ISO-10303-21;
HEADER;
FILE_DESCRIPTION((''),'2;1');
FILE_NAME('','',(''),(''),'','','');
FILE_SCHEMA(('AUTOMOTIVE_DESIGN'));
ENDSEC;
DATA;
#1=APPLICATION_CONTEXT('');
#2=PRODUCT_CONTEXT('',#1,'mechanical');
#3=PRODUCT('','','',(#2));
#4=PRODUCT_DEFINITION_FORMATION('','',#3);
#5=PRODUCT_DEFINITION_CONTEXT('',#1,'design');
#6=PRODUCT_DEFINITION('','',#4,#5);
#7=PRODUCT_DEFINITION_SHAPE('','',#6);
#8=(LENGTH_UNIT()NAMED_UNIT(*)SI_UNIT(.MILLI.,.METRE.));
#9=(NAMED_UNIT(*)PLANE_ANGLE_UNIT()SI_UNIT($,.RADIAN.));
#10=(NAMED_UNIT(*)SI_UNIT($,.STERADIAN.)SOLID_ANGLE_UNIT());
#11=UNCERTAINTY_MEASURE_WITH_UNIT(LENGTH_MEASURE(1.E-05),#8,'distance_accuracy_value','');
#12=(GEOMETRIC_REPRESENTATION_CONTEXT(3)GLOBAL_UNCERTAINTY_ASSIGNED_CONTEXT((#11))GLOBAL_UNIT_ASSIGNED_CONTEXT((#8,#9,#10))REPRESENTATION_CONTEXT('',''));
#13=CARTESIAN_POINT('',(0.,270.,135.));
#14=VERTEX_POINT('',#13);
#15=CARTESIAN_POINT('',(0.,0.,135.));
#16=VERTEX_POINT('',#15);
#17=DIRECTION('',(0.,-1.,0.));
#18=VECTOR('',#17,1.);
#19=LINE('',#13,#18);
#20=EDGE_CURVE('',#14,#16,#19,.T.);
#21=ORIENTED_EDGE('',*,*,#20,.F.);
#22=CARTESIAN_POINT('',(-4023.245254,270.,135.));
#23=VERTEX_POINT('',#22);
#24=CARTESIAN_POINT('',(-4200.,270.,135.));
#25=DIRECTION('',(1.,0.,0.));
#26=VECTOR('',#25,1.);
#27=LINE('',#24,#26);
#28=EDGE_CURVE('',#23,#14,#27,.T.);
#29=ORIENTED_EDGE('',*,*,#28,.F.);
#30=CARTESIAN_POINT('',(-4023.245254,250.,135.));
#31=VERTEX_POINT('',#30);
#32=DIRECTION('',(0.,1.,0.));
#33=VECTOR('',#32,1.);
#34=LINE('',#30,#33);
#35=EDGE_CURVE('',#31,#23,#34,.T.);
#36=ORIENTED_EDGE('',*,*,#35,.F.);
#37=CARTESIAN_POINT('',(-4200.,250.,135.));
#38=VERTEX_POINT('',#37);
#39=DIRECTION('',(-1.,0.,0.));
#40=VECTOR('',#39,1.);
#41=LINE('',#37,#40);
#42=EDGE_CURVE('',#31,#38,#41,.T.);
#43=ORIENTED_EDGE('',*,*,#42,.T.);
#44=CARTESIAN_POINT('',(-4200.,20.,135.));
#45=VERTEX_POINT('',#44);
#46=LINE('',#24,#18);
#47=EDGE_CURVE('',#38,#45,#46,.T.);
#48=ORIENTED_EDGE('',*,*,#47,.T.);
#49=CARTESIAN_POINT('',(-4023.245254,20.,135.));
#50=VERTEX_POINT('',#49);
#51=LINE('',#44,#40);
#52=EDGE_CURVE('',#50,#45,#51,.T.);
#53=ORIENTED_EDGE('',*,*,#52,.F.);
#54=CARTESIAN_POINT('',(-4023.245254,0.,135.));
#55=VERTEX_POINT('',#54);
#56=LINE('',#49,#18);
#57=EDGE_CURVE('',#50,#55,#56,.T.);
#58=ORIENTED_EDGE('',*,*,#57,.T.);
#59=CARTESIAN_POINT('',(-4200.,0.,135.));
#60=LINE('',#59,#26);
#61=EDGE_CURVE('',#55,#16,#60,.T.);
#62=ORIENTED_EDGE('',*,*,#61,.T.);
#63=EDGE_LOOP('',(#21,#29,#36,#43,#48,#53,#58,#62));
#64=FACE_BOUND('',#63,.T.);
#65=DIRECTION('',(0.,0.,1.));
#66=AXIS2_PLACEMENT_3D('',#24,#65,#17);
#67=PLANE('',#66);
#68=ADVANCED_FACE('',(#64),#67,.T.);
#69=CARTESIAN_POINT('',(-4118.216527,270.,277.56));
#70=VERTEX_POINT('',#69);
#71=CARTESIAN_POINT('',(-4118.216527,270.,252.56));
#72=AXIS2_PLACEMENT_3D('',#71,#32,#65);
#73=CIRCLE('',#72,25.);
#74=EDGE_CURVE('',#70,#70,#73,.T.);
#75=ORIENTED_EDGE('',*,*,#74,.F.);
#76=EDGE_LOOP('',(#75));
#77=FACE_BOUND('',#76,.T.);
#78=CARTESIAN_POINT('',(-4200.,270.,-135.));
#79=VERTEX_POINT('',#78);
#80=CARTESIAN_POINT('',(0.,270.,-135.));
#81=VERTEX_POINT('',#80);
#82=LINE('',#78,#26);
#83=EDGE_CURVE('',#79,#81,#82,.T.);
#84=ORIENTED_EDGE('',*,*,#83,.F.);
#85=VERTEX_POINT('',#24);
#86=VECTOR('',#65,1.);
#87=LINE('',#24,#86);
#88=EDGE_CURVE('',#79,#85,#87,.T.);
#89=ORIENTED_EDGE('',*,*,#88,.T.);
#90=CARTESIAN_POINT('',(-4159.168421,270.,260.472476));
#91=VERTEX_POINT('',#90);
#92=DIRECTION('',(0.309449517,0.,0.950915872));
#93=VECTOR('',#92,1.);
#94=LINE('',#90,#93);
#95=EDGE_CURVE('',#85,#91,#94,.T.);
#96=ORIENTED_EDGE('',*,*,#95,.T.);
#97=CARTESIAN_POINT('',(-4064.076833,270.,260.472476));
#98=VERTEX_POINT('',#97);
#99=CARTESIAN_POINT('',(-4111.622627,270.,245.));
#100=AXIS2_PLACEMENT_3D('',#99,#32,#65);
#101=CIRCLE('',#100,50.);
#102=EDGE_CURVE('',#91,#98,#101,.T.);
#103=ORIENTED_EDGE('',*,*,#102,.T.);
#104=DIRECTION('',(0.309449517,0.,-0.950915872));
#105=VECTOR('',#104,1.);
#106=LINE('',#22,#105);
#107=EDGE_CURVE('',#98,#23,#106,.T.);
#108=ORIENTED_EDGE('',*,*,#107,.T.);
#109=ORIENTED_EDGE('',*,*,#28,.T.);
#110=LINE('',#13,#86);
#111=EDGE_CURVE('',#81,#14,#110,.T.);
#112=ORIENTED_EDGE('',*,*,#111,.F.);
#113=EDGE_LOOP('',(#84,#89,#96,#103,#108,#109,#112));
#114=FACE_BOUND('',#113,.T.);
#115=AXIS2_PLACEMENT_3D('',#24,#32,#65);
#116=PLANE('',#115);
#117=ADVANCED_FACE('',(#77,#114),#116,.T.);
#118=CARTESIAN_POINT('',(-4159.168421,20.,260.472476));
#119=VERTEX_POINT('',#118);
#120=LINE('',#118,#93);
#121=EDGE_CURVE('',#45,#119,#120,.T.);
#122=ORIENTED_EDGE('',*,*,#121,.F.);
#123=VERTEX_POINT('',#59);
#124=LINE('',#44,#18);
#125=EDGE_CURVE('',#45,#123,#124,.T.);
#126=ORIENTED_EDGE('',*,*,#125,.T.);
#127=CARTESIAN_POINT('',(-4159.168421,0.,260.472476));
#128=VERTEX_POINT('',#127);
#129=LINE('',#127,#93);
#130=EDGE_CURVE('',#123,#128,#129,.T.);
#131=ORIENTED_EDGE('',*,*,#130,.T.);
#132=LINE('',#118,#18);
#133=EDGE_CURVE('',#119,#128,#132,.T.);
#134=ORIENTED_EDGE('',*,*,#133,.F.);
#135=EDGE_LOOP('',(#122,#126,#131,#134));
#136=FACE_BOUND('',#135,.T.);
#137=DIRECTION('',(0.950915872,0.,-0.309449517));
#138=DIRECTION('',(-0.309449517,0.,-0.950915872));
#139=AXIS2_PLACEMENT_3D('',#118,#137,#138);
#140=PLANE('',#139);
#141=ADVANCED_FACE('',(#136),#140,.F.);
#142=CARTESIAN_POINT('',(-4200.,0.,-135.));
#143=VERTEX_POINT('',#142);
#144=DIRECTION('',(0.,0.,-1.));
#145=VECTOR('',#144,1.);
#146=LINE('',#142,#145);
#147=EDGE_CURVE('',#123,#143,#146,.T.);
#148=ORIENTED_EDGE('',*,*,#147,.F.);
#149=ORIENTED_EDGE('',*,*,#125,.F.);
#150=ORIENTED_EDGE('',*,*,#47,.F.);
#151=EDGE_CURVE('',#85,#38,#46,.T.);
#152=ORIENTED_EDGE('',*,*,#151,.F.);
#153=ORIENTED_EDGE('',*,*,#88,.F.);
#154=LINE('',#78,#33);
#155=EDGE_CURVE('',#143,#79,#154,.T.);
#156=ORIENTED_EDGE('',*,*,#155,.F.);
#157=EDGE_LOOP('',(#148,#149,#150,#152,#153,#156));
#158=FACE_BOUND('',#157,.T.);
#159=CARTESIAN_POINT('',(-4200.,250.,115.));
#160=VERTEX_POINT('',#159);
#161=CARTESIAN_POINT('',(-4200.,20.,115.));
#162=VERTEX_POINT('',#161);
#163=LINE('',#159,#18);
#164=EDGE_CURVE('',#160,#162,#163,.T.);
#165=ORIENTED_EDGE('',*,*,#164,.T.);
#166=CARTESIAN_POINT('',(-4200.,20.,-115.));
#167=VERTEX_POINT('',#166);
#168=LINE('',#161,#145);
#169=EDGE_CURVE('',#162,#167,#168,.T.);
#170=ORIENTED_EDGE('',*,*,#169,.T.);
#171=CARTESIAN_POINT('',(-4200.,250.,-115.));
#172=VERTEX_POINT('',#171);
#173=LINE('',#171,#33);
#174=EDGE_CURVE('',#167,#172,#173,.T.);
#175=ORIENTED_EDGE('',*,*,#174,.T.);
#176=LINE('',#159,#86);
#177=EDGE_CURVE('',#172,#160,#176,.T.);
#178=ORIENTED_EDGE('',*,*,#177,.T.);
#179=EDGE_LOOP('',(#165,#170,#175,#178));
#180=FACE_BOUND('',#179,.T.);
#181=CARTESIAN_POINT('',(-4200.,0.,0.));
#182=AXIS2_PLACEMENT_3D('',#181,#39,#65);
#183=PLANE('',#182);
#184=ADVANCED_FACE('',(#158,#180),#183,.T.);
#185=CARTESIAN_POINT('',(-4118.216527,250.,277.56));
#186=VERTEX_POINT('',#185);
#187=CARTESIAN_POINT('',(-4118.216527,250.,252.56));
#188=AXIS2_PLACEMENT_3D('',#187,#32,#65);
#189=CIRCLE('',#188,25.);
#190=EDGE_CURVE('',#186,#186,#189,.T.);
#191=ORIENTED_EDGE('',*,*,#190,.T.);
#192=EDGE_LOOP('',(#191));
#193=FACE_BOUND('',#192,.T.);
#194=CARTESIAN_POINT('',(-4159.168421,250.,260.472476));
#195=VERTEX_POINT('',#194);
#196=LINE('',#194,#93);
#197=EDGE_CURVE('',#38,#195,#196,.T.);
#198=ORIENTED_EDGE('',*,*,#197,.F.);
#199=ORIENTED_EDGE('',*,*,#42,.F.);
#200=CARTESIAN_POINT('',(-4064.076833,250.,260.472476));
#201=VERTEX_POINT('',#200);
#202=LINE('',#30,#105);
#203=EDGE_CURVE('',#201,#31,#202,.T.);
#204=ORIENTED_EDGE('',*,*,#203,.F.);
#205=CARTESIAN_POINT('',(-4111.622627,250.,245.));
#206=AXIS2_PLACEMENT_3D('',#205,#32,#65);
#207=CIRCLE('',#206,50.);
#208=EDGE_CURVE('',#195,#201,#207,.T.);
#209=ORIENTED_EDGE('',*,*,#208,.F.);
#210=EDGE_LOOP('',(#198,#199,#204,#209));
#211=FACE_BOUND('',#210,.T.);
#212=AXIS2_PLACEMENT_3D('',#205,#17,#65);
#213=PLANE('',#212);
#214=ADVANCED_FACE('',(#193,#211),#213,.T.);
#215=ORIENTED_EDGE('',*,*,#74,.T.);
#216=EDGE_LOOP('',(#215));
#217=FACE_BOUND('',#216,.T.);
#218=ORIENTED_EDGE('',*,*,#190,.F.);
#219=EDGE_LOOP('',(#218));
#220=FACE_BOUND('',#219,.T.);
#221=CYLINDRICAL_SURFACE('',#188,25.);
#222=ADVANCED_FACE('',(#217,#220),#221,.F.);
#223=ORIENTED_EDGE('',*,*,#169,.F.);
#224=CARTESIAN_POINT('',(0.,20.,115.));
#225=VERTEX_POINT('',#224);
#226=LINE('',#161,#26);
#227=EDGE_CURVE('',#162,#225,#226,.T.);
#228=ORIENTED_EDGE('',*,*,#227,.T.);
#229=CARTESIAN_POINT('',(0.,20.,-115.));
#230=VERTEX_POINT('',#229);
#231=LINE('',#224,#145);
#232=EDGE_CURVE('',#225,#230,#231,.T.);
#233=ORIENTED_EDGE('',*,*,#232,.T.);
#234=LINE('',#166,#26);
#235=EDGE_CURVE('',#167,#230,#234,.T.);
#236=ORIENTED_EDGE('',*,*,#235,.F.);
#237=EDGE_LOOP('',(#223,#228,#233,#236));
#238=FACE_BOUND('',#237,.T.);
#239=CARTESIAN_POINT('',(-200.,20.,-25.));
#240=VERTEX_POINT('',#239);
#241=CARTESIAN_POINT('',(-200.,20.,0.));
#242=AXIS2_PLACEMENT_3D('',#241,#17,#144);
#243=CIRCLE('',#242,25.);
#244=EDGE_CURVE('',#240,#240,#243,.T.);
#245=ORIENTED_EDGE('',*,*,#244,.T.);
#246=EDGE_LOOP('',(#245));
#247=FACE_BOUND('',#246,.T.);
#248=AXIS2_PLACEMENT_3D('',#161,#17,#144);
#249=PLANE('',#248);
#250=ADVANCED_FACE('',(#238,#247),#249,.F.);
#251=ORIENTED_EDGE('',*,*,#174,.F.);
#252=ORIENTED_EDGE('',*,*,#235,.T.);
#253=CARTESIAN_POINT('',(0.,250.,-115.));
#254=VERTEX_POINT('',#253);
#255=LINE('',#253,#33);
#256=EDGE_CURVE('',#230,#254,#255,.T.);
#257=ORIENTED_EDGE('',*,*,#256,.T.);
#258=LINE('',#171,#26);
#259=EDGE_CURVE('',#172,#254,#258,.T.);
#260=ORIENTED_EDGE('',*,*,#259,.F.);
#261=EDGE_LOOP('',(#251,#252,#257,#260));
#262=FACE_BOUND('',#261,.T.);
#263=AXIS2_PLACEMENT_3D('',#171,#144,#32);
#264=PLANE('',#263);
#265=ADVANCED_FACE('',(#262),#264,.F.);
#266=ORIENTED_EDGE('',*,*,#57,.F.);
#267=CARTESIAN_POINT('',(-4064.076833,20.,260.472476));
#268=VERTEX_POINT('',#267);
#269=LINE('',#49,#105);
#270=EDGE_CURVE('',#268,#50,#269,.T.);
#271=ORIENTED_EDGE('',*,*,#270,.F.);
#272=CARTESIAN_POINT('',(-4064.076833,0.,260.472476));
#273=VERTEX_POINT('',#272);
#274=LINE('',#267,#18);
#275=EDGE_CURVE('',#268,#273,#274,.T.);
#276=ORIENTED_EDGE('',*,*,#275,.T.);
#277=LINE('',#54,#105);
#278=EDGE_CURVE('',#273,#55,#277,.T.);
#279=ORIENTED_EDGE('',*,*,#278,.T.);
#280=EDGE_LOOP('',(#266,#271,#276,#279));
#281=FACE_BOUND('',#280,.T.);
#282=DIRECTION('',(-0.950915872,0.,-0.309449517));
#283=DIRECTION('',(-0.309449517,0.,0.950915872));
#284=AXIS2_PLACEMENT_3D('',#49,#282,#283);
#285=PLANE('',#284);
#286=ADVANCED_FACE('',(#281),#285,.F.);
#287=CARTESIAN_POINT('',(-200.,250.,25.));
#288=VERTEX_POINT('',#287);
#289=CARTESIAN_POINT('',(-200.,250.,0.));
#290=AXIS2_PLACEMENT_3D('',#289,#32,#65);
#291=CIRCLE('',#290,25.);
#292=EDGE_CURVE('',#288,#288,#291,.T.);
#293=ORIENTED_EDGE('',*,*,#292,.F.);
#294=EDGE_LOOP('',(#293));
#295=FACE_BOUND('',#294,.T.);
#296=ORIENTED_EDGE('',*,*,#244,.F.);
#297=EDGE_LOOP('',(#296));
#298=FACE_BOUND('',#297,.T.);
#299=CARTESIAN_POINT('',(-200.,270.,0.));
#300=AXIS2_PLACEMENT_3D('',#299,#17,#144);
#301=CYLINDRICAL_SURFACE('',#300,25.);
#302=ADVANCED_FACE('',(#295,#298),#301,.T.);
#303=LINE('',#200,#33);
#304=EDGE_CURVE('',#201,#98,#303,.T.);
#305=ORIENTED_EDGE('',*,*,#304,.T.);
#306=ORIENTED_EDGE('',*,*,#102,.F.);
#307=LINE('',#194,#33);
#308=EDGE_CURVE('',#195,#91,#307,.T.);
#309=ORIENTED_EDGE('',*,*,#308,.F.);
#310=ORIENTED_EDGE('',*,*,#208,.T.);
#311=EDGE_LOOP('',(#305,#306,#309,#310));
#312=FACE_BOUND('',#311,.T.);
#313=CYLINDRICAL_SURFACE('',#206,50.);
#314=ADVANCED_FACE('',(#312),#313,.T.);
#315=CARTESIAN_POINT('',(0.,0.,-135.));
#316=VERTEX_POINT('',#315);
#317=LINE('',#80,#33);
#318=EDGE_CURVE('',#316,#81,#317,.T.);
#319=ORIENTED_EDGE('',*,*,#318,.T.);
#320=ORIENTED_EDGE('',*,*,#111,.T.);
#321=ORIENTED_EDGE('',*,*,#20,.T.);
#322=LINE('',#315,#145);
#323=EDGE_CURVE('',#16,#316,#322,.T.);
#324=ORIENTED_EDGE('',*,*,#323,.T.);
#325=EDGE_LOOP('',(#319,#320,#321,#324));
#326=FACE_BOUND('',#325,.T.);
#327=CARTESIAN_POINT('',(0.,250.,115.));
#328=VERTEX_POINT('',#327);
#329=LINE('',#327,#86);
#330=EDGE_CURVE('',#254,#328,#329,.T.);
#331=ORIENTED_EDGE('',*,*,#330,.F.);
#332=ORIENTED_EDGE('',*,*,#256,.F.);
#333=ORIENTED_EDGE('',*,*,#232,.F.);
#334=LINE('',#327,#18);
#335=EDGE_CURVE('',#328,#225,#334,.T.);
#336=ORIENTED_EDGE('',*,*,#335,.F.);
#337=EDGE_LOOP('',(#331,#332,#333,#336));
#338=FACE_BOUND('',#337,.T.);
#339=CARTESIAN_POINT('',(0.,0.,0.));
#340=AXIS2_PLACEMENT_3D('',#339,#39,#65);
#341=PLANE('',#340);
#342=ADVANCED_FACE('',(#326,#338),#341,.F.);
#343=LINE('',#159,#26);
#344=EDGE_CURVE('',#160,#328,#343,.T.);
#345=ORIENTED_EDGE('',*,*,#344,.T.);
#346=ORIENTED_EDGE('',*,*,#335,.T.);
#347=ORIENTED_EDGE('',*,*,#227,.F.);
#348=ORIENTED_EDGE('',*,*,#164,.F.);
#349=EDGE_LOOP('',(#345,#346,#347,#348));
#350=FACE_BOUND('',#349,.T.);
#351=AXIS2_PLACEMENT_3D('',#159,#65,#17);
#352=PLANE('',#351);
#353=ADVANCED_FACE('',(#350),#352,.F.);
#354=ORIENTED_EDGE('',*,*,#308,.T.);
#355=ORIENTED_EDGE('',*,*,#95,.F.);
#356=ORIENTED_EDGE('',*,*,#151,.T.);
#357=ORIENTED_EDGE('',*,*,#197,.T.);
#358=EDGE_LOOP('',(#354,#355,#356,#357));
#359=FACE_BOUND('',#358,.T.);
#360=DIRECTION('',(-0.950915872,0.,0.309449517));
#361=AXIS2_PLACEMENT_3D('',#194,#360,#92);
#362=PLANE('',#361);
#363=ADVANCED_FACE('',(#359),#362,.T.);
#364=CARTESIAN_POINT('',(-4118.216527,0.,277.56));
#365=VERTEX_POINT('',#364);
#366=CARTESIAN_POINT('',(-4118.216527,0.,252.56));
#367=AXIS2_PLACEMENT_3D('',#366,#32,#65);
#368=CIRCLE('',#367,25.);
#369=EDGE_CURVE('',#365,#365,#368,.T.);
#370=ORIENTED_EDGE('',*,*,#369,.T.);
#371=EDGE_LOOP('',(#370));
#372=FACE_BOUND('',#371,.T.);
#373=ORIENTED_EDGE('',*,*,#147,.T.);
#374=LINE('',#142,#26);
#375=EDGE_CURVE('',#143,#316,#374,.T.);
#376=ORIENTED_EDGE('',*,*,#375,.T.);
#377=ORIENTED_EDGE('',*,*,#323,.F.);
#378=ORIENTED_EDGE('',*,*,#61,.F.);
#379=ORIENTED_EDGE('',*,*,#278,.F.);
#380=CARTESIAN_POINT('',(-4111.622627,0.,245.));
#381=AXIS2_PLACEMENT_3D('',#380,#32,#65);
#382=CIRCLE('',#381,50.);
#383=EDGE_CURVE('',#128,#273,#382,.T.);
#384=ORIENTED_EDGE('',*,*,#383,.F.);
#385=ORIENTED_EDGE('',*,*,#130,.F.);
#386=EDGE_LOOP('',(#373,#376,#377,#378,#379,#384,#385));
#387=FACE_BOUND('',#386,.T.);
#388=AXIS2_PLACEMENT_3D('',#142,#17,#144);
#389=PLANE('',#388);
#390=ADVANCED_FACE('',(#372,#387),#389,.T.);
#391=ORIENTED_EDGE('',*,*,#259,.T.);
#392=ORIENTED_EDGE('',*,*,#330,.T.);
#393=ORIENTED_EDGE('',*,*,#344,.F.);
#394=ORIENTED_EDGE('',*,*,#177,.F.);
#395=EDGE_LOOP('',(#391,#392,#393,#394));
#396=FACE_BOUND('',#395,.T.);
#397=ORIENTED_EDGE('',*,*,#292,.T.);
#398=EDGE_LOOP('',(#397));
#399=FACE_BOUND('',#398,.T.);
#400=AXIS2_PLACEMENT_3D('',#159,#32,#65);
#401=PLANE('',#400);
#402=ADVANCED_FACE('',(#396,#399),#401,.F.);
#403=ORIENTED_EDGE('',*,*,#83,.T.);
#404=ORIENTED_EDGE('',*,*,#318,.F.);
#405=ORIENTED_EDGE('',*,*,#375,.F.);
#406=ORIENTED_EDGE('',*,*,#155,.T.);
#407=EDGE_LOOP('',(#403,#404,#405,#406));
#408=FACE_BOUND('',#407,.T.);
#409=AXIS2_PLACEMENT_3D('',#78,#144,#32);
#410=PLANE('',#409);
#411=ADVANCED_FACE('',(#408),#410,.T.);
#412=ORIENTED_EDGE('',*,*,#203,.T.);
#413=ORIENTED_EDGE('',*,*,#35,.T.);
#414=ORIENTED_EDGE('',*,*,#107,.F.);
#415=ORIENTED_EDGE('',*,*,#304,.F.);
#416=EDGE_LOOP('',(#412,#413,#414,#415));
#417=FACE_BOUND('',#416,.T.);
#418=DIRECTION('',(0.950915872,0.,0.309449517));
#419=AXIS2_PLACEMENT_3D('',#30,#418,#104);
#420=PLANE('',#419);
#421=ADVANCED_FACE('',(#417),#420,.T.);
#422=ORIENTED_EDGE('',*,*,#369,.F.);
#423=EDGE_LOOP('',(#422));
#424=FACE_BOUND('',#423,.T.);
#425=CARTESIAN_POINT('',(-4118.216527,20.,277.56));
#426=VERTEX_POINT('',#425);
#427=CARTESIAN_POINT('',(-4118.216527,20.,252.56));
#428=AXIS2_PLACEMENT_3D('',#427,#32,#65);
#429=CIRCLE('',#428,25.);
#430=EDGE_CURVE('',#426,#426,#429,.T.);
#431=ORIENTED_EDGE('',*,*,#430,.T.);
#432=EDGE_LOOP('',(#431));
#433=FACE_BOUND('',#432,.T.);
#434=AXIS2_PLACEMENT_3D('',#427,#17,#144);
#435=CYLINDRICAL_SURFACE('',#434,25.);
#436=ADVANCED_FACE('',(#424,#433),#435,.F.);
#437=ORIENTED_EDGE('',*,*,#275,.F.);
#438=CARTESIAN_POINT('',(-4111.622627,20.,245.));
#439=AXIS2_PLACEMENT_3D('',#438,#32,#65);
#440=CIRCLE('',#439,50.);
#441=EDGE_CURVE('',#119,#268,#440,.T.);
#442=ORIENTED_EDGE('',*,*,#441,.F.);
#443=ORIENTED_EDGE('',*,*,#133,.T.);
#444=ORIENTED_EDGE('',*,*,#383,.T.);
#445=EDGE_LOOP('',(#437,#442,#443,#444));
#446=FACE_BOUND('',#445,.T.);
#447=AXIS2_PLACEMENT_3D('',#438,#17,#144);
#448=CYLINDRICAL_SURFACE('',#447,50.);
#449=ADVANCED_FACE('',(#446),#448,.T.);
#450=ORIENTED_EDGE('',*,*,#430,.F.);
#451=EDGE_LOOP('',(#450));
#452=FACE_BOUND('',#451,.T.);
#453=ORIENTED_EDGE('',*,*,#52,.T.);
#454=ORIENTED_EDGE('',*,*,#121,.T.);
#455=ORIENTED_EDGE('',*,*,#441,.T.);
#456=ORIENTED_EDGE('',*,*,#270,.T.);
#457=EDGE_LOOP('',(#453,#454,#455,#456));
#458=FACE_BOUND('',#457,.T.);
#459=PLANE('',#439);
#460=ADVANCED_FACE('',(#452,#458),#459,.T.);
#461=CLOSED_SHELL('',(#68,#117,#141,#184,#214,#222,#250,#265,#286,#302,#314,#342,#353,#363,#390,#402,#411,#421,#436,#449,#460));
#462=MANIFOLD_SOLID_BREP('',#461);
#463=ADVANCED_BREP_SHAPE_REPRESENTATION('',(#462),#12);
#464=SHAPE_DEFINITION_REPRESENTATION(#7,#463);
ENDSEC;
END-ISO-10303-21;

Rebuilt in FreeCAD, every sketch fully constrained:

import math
import FreeCAD as App
import Part
import Sketcher
from FreeCAD import Vector
Q = App.Units.Quantity

doc = App.newDocument("Part")
body = doc.addObject("PartDesign::Body", "Body")

sketch1 = body.newObject("Sketcher::SketchObject", "Sketch")
sketch1.AttachmentSupport = (doc.getObject("YZ_Plane"), [""])
sketch1.MapMode = "FlatFace"
sketch1.addGeometry([
    Part.LineSegment(Vector(270, 135, 0), Vector(0, 135, 0)),
    Part.LineSegment(Vector(0, 135, 0), Vector(0, -135, 0)),
    Part.LineSegment(Vector(0, -135, 0), Vector(270, -135, 0)),
    Part.LineSegment(Vector(270, -135, 0), Vector(270, 135, 0)),
    Part.LineSegment(Vector(20, -115, 0), Vector(20, 115, 0)),
    Part.LineSegment(Vector(20, 115, 0), Vector(250, 115, 0)),
    Part.LineSegment(Vector(250, 115, 0), Vector(250, -115, 0)),
    Part.LineSegment(Vector(250, -115, 0), Vector(20, -115, 0)),
], False)
sketch1.addConstraint([
    Sketcher.Constraint("Coincident", 0, 2, 1, 1),
    Sketcher.Constraint("Coincident", 1, 2, 2, 1),
    Sketcher.Constraint("Coincident", 2, 2, 3, 1),
    Sketcher.Constraint("Coincident", 3, 2, 0, 1),
    Sketcher.Constraint("Coincident", 4, 2, 5, 1),
    Sketcher.Constraint("Coincident", 5, 2, 6, 1),
    Sketcher.Constraint("Coincident", 6, 2, 7, 1),
    Sketcher.Constraint("Coincident", 7, 2, 4, 1),
    Sketcher.Constraint("Horizontal", 0),
    Sketcher.Constraint("Vertical", 1),
    Sketcher.Constraint("Horizontal", 2),
    Sketcher.Constraint("Vertical", 3),
    Sketcher.Constraint("Vertical", 4),
    Sketcher.Constraint("Horizontal", 5),
    Sketcher.Constraint("Vertical", 6),
    Sketcher.Constraint("Horizontal", 7),
    Sketcher.Constraint("Symmetric", 0, 2, 1, 2, -1, 1),
    Sketcher.Constraint("Equal", 2, 1),
    Sketcher.Constraint("Equal", 7, 4),
    Sketcher.Constraint("DistanceX", 0, 2, 0, 1, Q("270 mm")),
    Sketcher.Constraint("DistanceX", 5, 1, 5, 2, Q("230 mm")),
    Sketcher.Constraint("DistanceX", -1, 1, 4, 2, Q("20 mm")),
    Sketcher.Constraint("DistanceY", -1, 1, 4, 2, Q("115 mm")),
])
pad1 = body.newObject("PartDesign::Pad", "Pad")
pad1.Profile = sketch1
pad1.Length = 4200
pad1.Reversed = True

sketch2 = body.newObject("Sketcher::SketchObject", "Sketch001")
sketch2.AttachmentSupport = (doc.getObject("XZ_Plane"), [""])
sketch2.MapMode = "FlatFace"
sketch2.addGeometry(Part.Circle(Vector(-200, 0, 0), Vector(0, 0, 1), 25), False)
sketch2.addConstraint([
    Sketcher.Constraint("PointOnObject", 0, 3, -1),
    Sketcher.Constraint("Diameter", 0, Q("50 mm")),
    Sketcher.Constraint("DistanceX", 0, 3, -1, 1, Q("200 mm")),
])
pad2 = body.newObject("PartDesign::Pad", "Pad001")
pad2.Profile = sketch2
pad2.Length = 250
pad2.Reversed = True

sketch3 = body.newObject("Sketcher::SketchObject", "Sketch002")
sketch3.AttachmentSupport = (doc.getObject("XZ_Plane"), [""])
sketch3.MapMode = "FlatFace"
sketch3.addGeometry([
    Part.LineSegment(Vector(-4064.076833, 260.472476, 0), Vector(-4023.245254, 135, 0)),
    Part.LineSegment(Vector(-4023.245254, 135, 0), Vector(-4200, 135, 0)),
    Part.LineSegment(Vector(-4200, 135, 0), Vector(-4159.168421, 260.472476, 0)),
    Part.ArcOfCircle(Part.Circle(Vector(-4111.622627, 245, 0), Vector(0, 0, 1), 50), math.radians(18.026059), math.radians(161.973941)),
    Part.Circle(Vector(-4118.216527, 252.56, 0), Vector(0, 0, 1), 25),
], False)
sketch3.addConstraint([
    Sketcher.Constraint("Coincident", 0, 2, 1, 1),
    Sketcher.Constraint("Coincident", 1, 2, 2, 1),
    Sketcher.Constraint("Tangent", 2, 2, 3, 2),
    Sketcher.Constraint("Tangent", 3, 1, 0, 1),
    Sketcher.Constraint("Horizontal", 1),
    Sketcher.Constraint("Horizontal", 2, 2, 3, 1),
    Sketcher.Constraint("Diameter", 4, Q("50 mm")),
    Sketcher.Constraint("Radius", 3, Q("50 mm")),
    Sketcher.Constraint("DistanceY", -1, 1, 3, 3, Q("245 mm")),
    Sketcher.Constraint("DistanceY", -1, 1, 0, 2, Q("135 mm")),
    Sketcher.Constraint("DistanceX", 1, 2, -1, 1, Q("4200 mm")),
    Sketcher.Constraint("DistanceY", -1, 1, 4, 3, Q("252.56 mm")),
    Sketcher.Constraint("DistanceX", 4, 3, 3, 3, Q("6.5939 mm")),
    Sketcher.Constraint("Distance", 0, Q("131.949081 mm")),
])
pad3 = body.newObject("PartDesign::Pad", "Pad002")
pad3.Profile = sketch3
pad3.Length = 20
pad3.Reversed = True
doc.recompute()

datumplane = body.newObject("PartDesign::Plane", "DatumPlane")
datumplane.AttachmentSupport = (doc.getObject("XZ_Plane"), [""])
datumplane.MapMode = "FlatFace"
datumplane.AttachmentOffset = App.Placement(Vector(0, 0, -135), App.Rotation())
mirrored = body.newObject("PartDesign::Mirrored", "Mirrored")
mirrored.Originals = [pad3]
mirrored.MirrorPlane = (datumplane, [""])
body.Tip = mirrored

doc.recompute()
